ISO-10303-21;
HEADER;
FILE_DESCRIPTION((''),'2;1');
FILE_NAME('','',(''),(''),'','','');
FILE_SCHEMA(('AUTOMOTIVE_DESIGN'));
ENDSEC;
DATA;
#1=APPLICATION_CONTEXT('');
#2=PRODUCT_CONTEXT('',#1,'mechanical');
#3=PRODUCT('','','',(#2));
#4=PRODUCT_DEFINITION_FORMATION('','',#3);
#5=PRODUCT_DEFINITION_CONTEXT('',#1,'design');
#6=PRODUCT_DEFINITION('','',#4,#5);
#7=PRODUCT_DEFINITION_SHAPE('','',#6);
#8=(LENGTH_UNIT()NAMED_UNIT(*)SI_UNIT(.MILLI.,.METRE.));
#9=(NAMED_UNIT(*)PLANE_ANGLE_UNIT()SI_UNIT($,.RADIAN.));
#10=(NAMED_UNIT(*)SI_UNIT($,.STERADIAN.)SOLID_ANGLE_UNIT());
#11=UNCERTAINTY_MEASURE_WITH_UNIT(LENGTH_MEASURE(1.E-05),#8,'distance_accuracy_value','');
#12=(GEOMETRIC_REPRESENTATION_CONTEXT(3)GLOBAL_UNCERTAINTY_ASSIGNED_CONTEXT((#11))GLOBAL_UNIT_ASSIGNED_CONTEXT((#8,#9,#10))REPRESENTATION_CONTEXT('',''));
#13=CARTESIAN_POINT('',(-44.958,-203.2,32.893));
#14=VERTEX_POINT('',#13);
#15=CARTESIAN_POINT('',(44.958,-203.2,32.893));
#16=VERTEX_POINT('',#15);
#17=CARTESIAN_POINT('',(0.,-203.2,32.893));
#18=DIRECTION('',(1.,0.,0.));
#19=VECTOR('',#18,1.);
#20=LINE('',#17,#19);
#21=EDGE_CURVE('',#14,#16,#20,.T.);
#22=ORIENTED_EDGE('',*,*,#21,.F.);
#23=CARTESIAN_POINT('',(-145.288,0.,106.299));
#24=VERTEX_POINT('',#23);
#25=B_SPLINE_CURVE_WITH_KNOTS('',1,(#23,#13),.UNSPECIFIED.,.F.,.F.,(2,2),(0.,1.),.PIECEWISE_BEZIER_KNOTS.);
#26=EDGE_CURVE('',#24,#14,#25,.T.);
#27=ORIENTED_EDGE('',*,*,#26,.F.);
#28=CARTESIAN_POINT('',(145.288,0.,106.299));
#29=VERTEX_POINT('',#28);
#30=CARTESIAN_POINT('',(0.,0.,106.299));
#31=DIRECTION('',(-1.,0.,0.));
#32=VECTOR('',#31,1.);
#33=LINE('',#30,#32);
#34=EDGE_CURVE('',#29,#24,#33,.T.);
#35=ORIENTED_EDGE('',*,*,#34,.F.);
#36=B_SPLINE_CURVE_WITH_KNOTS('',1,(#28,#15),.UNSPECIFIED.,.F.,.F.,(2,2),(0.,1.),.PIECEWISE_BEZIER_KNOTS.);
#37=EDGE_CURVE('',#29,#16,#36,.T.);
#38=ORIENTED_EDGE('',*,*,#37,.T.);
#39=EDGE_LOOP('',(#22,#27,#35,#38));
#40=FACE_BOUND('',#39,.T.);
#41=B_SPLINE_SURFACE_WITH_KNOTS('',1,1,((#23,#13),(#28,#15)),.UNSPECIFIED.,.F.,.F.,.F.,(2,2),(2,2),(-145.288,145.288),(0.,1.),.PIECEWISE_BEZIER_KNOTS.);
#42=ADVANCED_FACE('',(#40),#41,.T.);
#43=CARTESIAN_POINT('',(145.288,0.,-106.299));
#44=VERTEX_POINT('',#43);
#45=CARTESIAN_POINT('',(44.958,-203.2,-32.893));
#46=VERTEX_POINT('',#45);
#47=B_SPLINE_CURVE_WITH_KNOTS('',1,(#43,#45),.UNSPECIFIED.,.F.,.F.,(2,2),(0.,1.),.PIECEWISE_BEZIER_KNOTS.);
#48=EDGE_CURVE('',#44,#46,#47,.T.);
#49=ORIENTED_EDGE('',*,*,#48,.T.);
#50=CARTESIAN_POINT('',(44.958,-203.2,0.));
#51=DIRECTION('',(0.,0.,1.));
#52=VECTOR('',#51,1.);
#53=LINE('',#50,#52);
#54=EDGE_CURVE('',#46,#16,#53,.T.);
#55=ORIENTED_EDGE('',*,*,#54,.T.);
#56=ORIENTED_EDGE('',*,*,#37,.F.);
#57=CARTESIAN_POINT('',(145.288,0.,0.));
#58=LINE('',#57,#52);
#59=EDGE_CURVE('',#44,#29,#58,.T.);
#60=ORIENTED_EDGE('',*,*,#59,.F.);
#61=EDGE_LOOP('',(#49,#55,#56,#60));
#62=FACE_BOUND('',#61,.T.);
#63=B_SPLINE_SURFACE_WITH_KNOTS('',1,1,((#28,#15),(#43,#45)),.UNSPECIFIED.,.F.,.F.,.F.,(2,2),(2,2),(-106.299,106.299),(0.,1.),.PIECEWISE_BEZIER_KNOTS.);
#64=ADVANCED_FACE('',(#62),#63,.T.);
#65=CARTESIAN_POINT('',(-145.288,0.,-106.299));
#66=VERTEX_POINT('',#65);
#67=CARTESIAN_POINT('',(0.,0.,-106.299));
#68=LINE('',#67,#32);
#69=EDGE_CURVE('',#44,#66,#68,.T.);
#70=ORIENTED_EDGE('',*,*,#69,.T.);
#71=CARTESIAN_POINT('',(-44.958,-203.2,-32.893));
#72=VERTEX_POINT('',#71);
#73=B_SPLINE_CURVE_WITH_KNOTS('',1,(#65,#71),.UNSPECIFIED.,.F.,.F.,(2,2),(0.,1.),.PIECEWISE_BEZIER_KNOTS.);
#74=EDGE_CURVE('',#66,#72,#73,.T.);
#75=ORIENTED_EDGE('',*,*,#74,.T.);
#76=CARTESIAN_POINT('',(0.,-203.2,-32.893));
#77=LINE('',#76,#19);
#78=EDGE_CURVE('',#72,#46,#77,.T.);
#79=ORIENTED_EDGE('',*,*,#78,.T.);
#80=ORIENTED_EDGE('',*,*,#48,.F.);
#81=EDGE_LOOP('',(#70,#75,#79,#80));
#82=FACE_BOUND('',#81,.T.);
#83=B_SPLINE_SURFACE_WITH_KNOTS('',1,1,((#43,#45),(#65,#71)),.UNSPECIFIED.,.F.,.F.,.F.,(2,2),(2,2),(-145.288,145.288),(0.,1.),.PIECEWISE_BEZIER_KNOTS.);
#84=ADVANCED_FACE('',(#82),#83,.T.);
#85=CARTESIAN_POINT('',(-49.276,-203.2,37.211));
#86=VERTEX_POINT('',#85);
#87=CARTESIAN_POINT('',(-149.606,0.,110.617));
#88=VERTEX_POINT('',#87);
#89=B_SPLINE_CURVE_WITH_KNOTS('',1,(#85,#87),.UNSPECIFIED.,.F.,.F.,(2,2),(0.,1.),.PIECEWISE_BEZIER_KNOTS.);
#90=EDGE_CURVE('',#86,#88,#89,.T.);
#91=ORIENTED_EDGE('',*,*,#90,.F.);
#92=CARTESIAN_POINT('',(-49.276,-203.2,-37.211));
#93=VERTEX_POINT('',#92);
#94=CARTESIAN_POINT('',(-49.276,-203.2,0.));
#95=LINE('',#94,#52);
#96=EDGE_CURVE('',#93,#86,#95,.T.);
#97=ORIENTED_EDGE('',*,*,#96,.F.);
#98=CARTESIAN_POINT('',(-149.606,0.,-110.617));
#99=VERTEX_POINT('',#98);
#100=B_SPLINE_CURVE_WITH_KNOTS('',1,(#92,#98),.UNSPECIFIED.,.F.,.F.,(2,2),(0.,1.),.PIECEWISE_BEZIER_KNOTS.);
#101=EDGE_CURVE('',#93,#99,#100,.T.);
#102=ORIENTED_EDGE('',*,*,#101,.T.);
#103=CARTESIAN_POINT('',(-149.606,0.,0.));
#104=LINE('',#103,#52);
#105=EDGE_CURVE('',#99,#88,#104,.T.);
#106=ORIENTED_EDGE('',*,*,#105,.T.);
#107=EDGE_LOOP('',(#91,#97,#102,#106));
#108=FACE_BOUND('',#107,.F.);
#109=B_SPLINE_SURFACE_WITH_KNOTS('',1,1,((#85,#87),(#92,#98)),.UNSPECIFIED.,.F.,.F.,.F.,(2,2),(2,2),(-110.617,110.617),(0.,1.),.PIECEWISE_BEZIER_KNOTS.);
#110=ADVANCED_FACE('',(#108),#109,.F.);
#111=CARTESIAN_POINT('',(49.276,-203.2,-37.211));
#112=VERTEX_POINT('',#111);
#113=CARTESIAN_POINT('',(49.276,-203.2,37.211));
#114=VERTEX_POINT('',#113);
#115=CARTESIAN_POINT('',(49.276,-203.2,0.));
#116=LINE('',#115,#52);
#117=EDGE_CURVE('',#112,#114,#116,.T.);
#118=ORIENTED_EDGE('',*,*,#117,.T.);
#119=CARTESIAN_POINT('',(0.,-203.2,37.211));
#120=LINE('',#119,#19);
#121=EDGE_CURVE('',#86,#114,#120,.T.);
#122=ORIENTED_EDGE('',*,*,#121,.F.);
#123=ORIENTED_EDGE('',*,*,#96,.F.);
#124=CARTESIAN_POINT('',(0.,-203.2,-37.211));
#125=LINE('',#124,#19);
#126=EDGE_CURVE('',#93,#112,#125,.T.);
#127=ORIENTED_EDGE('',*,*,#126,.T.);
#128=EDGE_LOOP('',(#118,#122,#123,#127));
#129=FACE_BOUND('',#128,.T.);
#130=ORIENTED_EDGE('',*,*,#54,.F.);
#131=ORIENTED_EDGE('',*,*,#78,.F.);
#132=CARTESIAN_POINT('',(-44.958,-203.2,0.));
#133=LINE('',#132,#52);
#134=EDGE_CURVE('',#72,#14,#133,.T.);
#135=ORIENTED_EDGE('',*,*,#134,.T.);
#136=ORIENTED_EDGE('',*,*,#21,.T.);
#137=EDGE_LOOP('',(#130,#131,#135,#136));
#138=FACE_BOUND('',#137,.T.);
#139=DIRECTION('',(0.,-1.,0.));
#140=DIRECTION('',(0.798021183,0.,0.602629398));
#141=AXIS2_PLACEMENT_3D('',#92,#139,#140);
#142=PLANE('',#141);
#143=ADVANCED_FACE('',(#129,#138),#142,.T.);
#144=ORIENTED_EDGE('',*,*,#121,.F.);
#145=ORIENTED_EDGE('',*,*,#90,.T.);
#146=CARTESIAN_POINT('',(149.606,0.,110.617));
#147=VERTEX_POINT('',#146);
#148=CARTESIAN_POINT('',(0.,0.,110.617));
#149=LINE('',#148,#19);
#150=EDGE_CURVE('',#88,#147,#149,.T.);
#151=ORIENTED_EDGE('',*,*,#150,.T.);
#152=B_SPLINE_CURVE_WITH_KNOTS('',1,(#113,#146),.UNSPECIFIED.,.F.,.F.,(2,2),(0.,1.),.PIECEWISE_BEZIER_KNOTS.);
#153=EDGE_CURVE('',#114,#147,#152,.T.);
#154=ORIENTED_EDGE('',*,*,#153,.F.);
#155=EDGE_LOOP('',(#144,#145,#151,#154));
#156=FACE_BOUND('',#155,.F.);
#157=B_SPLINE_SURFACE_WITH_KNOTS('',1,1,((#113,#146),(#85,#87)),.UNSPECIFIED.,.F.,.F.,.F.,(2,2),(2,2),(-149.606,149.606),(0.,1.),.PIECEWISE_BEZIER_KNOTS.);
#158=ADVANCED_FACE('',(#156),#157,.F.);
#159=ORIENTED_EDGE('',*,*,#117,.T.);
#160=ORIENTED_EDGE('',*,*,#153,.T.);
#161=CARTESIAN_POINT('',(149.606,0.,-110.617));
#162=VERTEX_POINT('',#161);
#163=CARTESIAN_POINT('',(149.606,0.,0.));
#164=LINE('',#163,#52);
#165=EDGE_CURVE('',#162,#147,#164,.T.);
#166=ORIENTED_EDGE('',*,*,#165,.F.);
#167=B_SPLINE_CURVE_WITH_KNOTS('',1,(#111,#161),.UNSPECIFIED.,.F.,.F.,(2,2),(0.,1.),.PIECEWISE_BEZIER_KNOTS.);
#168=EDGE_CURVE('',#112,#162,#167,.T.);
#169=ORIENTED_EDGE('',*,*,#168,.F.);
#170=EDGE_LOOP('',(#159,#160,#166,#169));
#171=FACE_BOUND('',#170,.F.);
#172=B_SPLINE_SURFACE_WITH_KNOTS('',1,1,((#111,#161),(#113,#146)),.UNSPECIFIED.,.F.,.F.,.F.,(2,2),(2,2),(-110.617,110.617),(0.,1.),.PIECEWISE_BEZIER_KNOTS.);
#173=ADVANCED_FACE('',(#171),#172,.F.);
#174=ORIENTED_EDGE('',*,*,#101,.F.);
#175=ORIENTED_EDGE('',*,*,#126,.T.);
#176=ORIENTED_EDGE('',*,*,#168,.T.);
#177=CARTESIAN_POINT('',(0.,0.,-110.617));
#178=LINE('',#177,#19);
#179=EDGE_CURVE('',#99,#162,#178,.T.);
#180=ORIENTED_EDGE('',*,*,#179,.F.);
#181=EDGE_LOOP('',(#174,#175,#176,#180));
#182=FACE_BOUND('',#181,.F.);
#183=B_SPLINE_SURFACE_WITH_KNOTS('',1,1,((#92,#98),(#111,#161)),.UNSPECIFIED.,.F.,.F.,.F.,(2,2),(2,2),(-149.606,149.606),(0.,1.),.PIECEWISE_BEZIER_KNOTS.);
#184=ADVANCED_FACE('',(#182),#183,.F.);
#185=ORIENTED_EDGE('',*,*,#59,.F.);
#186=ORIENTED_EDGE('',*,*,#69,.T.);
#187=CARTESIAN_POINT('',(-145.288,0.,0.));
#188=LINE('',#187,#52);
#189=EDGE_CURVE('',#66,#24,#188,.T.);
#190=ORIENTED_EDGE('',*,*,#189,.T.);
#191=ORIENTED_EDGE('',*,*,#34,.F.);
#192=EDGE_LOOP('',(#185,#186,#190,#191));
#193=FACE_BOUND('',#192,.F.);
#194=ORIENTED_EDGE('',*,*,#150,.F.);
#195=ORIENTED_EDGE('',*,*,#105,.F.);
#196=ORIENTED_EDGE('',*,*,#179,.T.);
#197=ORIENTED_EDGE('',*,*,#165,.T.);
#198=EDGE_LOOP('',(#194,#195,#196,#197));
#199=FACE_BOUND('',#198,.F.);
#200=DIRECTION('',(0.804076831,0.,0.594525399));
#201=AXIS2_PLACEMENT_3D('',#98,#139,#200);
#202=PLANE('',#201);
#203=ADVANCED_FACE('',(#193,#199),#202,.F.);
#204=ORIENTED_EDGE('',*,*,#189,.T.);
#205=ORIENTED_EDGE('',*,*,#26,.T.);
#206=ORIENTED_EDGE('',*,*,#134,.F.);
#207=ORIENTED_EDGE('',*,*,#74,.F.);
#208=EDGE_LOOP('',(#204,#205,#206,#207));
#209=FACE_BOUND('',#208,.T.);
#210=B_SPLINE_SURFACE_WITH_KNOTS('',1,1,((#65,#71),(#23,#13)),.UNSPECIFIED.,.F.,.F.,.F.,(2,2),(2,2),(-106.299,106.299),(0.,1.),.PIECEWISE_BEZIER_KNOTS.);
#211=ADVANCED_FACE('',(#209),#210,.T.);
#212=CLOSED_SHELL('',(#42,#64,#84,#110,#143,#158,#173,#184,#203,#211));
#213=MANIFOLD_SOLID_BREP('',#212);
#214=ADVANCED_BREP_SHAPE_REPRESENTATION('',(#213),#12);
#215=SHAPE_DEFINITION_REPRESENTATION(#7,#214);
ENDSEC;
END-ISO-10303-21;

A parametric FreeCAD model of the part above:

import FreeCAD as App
import Part
import Sketcher
Q = App.Units.Quantity


def add_polygon(sketch, points):
    """Adds a closed chain of lines whose ends are joined by coincident constraints."""
    first, n = sketch.GeometryCount, len(points)
    for a, b in zip(points, points[1:] + points[:1]):
        sketch.addGeometry(Part.LineSegment(App.Vector(*a, 0), App.Vector(*b, 0)), False)
    for i in range(n):
        sketch.addConstraint(Sketcher.Constraint("Coincident", first + i, 2, first + (i + 1) % n, 1))

doc = App.newDocument("Part")
body = doc.addObject("PartDesign::Body", "Body")

# Sketch on XZ plane
sketch1 = body.newObject("Sketcher::SketchObject", "Sketch")
sketch1.AttachmentSupport = (doc.getObject("XZ_Plane"), [""])
sketch1.MapMode = "FlatFace"
sketch1.AttachmentOffset = App.Placement(App.Vector(0, 0, 8 * 25.4), App.Rotation())
add_polygon(sketch1, [(-49, 37), (-49, -37), (49, -37), (49, 37)])  # lines 0-3
sketch1.addConstraint(Sketcher.Constraint("Vertical", 0))
sketch1.addConstraint(Sketcher.Constraint("Horizontal", 1))
sketch1.addConstraint(Sketcher.Constraint("Vertical", 2))
sketch1.addConstraint(Sketcher.Constraint("Horizontal", 3))
sketch1.addConstraint(Sketcher.Constraint("Symmetric", 0, 2, 2, 2, -1, 1))
sketch1.addConstraint(Sketcher.Constraint("DistanceX", 1, 1, 1, 2, Q("3.88 in")))
sketch1.addConstraint(Sketcher.Constraint("DistanceY", 0, 2, 0, 1, Q("2.93 in")))

# Sketch on XZ plane
sketch2 = body.newObject("Sketcher::SketchObject", "Sketch001")
sketch2.AttachmentSupport = (doc.getObject("XZ_Plane"), [""])
sketch2.MapMode = "FlatFace"
add_polygon(sketch2, [(-150, 111), (-150, -111), (150, -111), (150, 111)])  # lines 0-3
sketch2.addConstraint(Sketcher.Constraint("Vertical", 0))
sketch2.addConstraint(Sketcher.Constraint("Horizontal", 1))
sketch2.addConstraint(Sketcher.Constraint("Vertical", 2))
sketch2.addConstraint(Sketcher.Constraint("Horizontal", 3))
sketch2.addConstraint(Sketcher.Constraint("Symmetric", 0, 2, 2, 2, -1, 1))
sketch2.addConstraint(Sketcher.Constraint("DistanceX", 1, 1, 1, 2, Q("11.78 in")))
sketch2.addConstraint(Sketcher.Constraint("DistanceY", 0, 2, 0, 1, Q("8.71 in")))

additiveloft = body.newObject("PartDesign::AdditiveLoft", "AdditiveLoft")
additiveloft.Profile = sketch1
additiveloft.Sections = [sketch2]

# Sketch on XZ plane
sketch3 = body.newObject("Sketcher::SketchObject", "Sketch002")
sketch3.AttachmentSupport = (doc.getObject("XZ_Plane"), [""])
sketch3.MapMode = "FlatFace"
add_polygon(sketch3, [(145, 106), (145, -106), (-145, -106), (-145, 106)])  # lines 0-3
sketch3.addConstraint(Sketcher.Constraint("Vertical", 0))
sketch3.addConstraint(Sketcher.Constraint("Horizontal", 1))
sketch3.addConstraint(Sketcher.Constraint("Vertical", 2))
sketch3.addConstraint(Sketcher.Constraint("Horizontal", 3))
sketch3.addConstraint(Sketcher.Constraint("Symmetric", 0, 2, 2, 2, -1, 1))
sketch3.addConstraint(Sketcher.Constraint("DistanceX", 1, 2, 1, 1, Q("11.44 in")))
sketch3.addConstraint(Sketcher.Constraint("DistanceY", 0, 2, 0, 1, Q("8.37 in")))

# Sketch on XZ plane
sketch4 = body.newObject("Sketcher::SketchObject", "Sketch003")
sketch4.AttachmentSupport = (doc.getObject("XZ_Plane"), [""])
sketch4.MapMode = "FlatFace"
sketch4.AttachmentOffset = App.Placement(App.Vector(0, 0, 8 * 25.4), App.Rotation())
add_polygon(sketch4, [(-45, 33), (-45, -33), (45, -33), (45, 33)])  # lines 0-3
sketch4.addConstraint(Sketcher.Constraint("Vertical", 0))
sketch4.addConstraint(Sketcher.Constraint("Horizontal", 1))
sketch4.addConstraint(Sketcher.Constraint("Vertical", 2))
sketch4.addConstraint(Sketcher.Constraint("Horizontal", 3))
sketch4.addConstraint(Sketcher.Constraint("Symmetric", 0, 2, 2, 2, -1, 1))
sketch4.addConstraint(Sketcher.Constraint("DistanceX", 1, 1, 1, 2, Q("3.54 in")))
sketch4.addConstraint(Sketcher.Constraint("DistanceY", 0, 2, 0, 1, Q("2.59 in")))

subtractiveloft = body.newObject("PartDesign::SubtractiveLoft", "SubtractiveLoft")
subtractiveloft.Profile = sketch3
subtractiveloft.Sections = [sketch4]

doc.recompute()
